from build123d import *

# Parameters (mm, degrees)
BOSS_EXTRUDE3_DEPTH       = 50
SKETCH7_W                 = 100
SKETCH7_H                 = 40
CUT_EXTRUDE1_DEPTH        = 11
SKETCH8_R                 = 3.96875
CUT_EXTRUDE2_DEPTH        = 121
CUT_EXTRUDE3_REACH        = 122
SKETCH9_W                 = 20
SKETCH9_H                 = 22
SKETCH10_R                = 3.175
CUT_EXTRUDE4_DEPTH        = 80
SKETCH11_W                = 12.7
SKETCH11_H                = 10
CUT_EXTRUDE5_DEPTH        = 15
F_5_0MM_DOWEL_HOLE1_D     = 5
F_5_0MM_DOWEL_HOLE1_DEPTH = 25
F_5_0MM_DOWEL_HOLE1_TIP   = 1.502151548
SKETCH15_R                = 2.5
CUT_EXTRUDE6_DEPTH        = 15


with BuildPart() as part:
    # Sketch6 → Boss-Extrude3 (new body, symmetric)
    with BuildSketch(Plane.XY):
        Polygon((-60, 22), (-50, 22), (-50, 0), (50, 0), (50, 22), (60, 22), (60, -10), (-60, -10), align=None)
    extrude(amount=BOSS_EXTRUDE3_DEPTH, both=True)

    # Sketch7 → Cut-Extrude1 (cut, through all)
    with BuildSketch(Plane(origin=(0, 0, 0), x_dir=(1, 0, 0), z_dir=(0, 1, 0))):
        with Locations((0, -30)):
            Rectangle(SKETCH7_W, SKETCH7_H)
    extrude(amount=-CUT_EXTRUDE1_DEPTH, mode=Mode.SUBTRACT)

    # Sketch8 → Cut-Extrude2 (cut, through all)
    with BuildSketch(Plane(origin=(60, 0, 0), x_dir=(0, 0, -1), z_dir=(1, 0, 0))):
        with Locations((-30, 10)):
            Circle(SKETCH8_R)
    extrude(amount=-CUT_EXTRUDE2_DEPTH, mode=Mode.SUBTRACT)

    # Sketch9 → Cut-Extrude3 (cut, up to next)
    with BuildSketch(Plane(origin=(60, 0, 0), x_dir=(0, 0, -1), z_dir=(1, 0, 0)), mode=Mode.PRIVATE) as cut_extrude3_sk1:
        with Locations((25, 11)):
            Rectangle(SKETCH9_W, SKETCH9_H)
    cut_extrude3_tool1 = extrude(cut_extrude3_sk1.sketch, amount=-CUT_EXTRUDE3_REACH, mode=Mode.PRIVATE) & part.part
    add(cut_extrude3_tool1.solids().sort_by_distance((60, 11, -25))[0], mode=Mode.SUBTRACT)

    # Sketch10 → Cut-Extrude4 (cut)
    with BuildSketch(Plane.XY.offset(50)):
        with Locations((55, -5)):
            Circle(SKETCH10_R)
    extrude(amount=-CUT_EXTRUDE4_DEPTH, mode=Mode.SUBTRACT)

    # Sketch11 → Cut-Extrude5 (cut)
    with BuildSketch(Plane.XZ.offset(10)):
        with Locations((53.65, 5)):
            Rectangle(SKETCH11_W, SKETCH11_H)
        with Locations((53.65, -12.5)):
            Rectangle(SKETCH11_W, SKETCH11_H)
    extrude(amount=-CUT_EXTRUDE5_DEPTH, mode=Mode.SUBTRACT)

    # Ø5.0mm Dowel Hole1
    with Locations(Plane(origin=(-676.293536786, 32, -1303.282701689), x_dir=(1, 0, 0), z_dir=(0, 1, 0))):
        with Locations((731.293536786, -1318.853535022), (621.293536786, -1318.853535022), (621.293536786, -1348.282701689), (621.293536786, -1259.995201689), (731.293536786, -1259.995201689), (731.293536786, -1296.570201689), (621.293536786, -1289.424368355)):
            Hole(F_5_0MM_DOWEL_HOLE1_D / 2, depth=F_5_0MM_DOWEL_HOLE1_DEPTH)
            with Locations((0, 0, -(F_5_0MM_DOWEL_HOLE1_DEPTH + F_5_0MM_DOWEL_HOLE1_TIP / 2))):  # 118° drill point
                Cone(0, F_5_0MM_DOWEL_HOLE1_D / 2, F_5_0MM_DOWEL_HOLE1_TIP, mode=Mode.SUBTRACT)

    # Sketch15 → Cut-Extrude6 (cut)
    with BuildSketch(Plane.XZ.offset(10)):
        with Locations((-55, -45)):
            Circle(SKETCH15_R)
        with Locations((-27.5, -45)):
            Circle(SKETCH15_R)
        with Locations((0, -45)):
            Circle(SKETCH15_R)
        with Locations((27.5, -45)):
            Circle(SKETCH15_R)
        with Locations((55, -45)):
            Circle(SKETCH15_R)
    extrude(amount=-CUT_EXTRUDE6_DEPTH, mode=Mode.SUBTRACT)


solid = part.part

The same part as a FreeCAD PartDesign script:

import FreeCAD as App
import Part
import Sketcher
from FreeCAD import Vector

doc = App.newDocument("Part")
body = doc.addObject("PartDesign::Body", "Body")

sketch1 = doc.addObject("Sketcher::SketchObject", "Sketch")
body.addObject(sketch1)
sketch1.AttachmentSupport = (doc.XY_Plane, [""])
sketch1.MapMode = "FlatFace"
sketch1.addGeometry([
    Part.LineSegment(Vector(-50, 22, 0), Vector(-60, 22, 0)),
    Part.LineSegment(Vector(-60, 22, 0), Vector(-60, -10, 0)),
    Part.LineSegment(Vector(-60, -10, 0), Vector(60, -10, 0)),
    Part.LineSegment(Vector(60, -10, 0), Vector(60, 22, 0)),
    Part.LineSegment(Vector(60, 22, 0), Vector(50, 22, 0)),
    Part.LineSegment(Vector(50, 22, 0), Vector(50, 0, 0)),
    Part.LineSegment(Vector(50, 0, 0), Vector(-50, 0, 0)),
    Part.LineSegment(Vector(-50, 0, 0), Vector(-50, 22, 0)),
], False)
sketch1.addConstraint([
    Sketcher.Constraint("Coincident", 0, 2, 1, 1),
    Sketcher.Constraint("Coincident", 1, 2, 2, 1),
    Sketcher.Constraint("Coincident", 2, 2, 3, 1),
    Sketcher.Constraint("Coincident", 3, 2, 4, 1),
    Sketcher.Constraint("Coincident", 4, 2, 5, 1),
    Sketcher.Constraint("Coincident", 5, 2, 6, 1),
    Sketcher.Constraint("Coincident", 6, 2, 7, 1),
    Sketcher.Constraint("Coincident", 7, 2, 0, 1),
    Sketcher.Constraint("Horizontal", 0),
    Sketcher.Constraint("Vertical", 1),
    Sketcher.Constraint("Horizontal", 2),
    Sketcher.Constraint("Vertical", 3),
    Sketcher.Constraint("Horizontal", 4),
    Sketcher.Constraint("Vertical", 5),
    Sketcher.Constraint("Horizontal", 6),
    Sketcher.Constraint("Vertical", 7),
    Sketcher.Constraint("Symmetric", 5, 2, 6, 2, -1, 1),
    Sketcher.Constraint("Symmetric", 0, 2, 3, 2, -2),
    Sketcher.Constraint("DistanceX", 0, 2, 0, 1, 10.0),
    Sketcher.Constraint("DistanceX", 2, 1, 2, 2, 120.0),
    Sketcher.Constraint("DistanceY", 1, 2, 1, 1, 32.0),
    Sketcher.Constraint("DistanceY", 5, 2, 5, 1, 22.0),
])
pad1 = doc.addObject("PartDesign::Pad", "Pad")
body.addObject(pad1)
pad1.Profile = sketch1
pad1.Length = 100
pad1.Midplane = True

sketch2 = doc.addObject("Sketcher::SketchObject", "Sketch001")
body.addObject(sketch2)
sketch2.AttachmentSupport = (doc.XZ_Plane, [""])
sketch2.MapMode = "FlatFace"
sketch2.addGeometry([
    Part.LineSegment(Vector(-50, 10, 0), Vector(-50, 50, 0)),
    Part.LineSegment(Vector(-50, 50, 0), Vector(50, 50, 0)),
    Part.LineSegment(Vector(50, 50, 0), Vector(50, 10, 0)),
    Part.LineSegment(Vector(50, 10, 0), Vector(-50, 10, 0)),
], False)
sketch2.addConstraint([
    Sketcher.Constraint("Coincident", 0, 2, 1, 1),
    Sketcher.Constraint("Coincident", 1, 2, 2, 1),
    Sketcher.Constraint("Coincident", 2, 2, 3, 1),
    Sketcher.Constraint("Coincident", 3, 2, 0, 1),
    Sketcher.Constraint("Vertical", 0),
    Sketcher.Constraint("Horizontal", 1),
    Sketcher.Constraint("Vertical", 2),
    Sketcher.Constraint("Horizontal", 3),
    Sketcher.Constraint("DistanceX", 1, 1, 1, 2, 100.0),
    Sketcher.Constraint("DistanceY", 0, 1, 0, 2, 40.0),
    Sketcher.Constraint("DistanceX", 0, 2, -1, 1, 50.0),
    Sketcher.Constraint("DistanceY", -1, 1, 0, 2, 50.0),
])
pocket1 = doc.addObject("PartDesign::Pocket", "Pocket")
body.addObject(pocket1)
pocket1.Profile = sketch2
pocket1.Type = "ThroughAll"
pocket1.Reversed = True

sketch3 = doc.addObject("Sketcher::SketchObject", "Sketch002")
body.addObject(sketch3)
sketch3.AttachmentSupport = (doc.YZ_Plane, [""])
sketch3.MapMode = "FlatFace"
sketch3.AttachmentOffset = App.Placement(Vector(0, 0, 60), App.Rotation())
sketch3.addGeometry(Part.Circle(Vector(10, 30, 0), Vector(0, 0, 1), 4), False)
sketch3.addConstraint([
    Sketcher.Constraint("DistanceX", -1, 1, 0, 3, 10.0),
    Sketcher.Constraint("DistanceY", -1, 1, 0, 3, 30.0),
    Sketcher.Constraint("Diameter", 0, 7.9375),
])
pocket2 = doc.addObject("PartDesign::Pocket", "Pocket001")
body.addObject(pocket2)
pocket2.Profile = sketch3
pocket2.Type = "ThroughAll"

sketch4 = doc.addObject("Sketcher::SketchObject", "Sketch003")
body.addObject(sketch4)
sketch4.AttachmentSupport = (doc.YZ_Plane, [""])
sketch4.MapMode = "FlatFace"
sketch4.AttachmentOffset = App.Placement(Vector(0, 0, 60), App.Rotation())
sketch4.addGeometry([
    Part.LineSegment(Vector(22, -15, 0), Vector(0, -15, 0)),
    Part.LineSegment(Vector(0, -15, 0), Vector(0, -35, 0)),
    Part.LineSegment(Vector(0, -35, 0), Vector(22, -35, 0)),
    Part.LineSegment(Vector(22, -35, 0), Vector(22, -15, 0)),
], False)
sketch4.addConstraint([
    Sketcher.Constraint("Coincident", 0, 2, 1, 1),
    Sketcher.Constraint("Coincident", 1, 2, 2, 1),
    Sketcher.Constraint("Coincident", 2, 2, 3, 1),
    Sketcher.Constraint("Coincident", 3, 2, 0, 1),
    Sketcher.Constraint("Horizontal", 0),
    Sketcher.Constraint("Vertical", 1),
    Sketcher.Constraint("Horizontal", 2),
    Sketcher.Constraint("Vertical", 3),
    Sketcher.Constraint("PointOnObject", 0, 2, -2),
    Sketcher.Constraint("DistanceX", 0, 2, 0, 1, 22.0),
    Sketcher.Constraint("DistanceY", 1, 2, 1, 1, 20.0),
    Sketcher.Constraint("DistanceY", 0, 2, -1, 1, 15.0),
])
pocket3 = doc.addObject("PartDesign::Pocket", "Pocket002")
body.addObject(pocket3)
pocket3.Profile = sketch4
pocket3.Type = "UpToFirst"

sketch5 = doc.addObject("Sketcher::SketchObject", "Sketch004")
body.addObject(sketch5)
sketch5.AttachmentSupport = (doc.XY_Plane, [""])
sketch5.MapMode = "FlatFace"
sketch5.AttachmentOffset = App.Placement(Vector(0, 0, 50), App.Rotation())
sketch5.addGeometry(Part.Circle(Vector(55, -5, 0), Vector(0, 0, 1), 3.2), False)
sketch5.addConstraint([
    Sketcher.Constraint("Diameter", 0, 6.35),
    Sketcher.Constraint("DistanceX", -1, 1, 0, 3, 55.0),
    Sketcher.Constraint("DistanceY", 0, 3, -1, 1, 5.0),
])
pocket4 = doc.addObject("PartDesign::Pocket", "Pocket003")
body.addObject(pocket4)
pocket4.Profile = sketch5
pocket4.Length = 80

sketch6 = doc.addObject("Sketcher::SketchObject", "Sketch005")
body.addObject(sketch6)
sketch6.AttachmentSupport = (doc.XZ_Plane, [""])
sketch6.MapMode = "FlatFace"
sketch6.AttachmentOffset = App.Placement(Vector(0, 0, 10), App.Rotation())
sketch6.addGeometry([
    Part.LineSegment(Vector(47, 10, 0), Vector(47, 0, 0)),
    Part.LineSegment(Vector(47, 0, 0), Vector(60, 0, 0)),
    Part.LineSegment(Vector(60, 0, 0), Vector(60, 10, 0)),
    Part.LineSegment(Vector(60, 10, 0), Vector(47, 10, 0)),
    Part.LineSegment(Vector(47, -8, 0), Vector(47, -18, 0)),
    Part.LineSegment(Vector(47, -18, 0), Vector(60, -18, 0)),
    Part.LineSegment(Vector(60, -18, 0), Vector(60, -8, 0)),
    Part.LineSegment(Vector(60, -8, 0), Vector(47, -8, 0)),
], False)
sketch6.addConstraint([
    Sketcher.Constraint("Coincident", 0, 2, 1, 1),
    Sketcher.Constraint("Coincident", 1, 2, 2, 1),
    Sketcher.Constraint("Coincident", 2, 2, 3, 1),
    Sketcher.Constraint("Coincident", 3, 2, 0, 1),
    Sketcher.Constraint("Coincident", 4, 2, 5, 1),
    Sketcher.Constraint("Coincident", 5, 2, 6, 1),
    Sketcher.Constraint("Coincident", 6, 2, 7, 1),
    Sketcher.Constraint("Coincident", 7, 2, 4, 1),
    Sketcher.Constraint("Vertical", 0),
    Sketcher.Constraint("Horizontal", 1),
    Sketcher.Constraint("Vertical", 2),
    Sketcher.Constraint("Horizontal", 3),
    Sketcher.Constraint("Vertical", 4),
    Sketcher.Constraint("Horizontal", 5),
    Sketcher.Constraint("Vertical", 6),
    Sketcher.Constraint("Horizontal", 7),
    Sketcher.Constraint("PointOnObject", 0, 2, -1),
    Sketcher.Constraint("Vertical", 3, 2, 4, 2),
    Sketcher.Constraint("Vertical", 2, 2, 5, 2),
    Sketcher.Constraint("Equal", 2, 4),
    Sketcher.Constraint("DistanceY", 0, 2, 0, 1, 10.0),
    Sketcher.Constraint("DistanceX", 1, 1, 1, 2, 12.7),
    Sketcher.Constraint("DistanceX", -1, 1, 1, 2, 60.0),
    Sketcher.Constraint("DistanceY", 4, 2, -1, 1, 17.5),
])
pocket5 = doc.addObject("PartDesign::Pocket", "Pocket004")
body.addObject(pocket5)
pocket5.Profile = sketch6
pocket5.Length = 15

sketch7 = doc.addObject("Sketcher::SketchObject", "Sketch006")
body.addObject(sketch7)
sketch7.AttachmentSupport = (doc.XZ_Plane, [""])
sketch7.MapMode = "FlatFace"
sketch7.AttachmentOffset = App.Placement(Vector(0, 0, -32), App.Rotation())
sketch7.addGeometry([
    Part.Circle(Vector(55, 15.6, 0), Vector(0, 0, 1), 2.5),
    Part.Circle(Vector(-55, 15.6, 0), Vector(0, 0, 1), 2.5),
    Part.Circle(Vector(-55, 45, 0), Vector(0, 0, 1), 2.5),
    Part.Circle(Vector(-55, -43.3, 0), Vector(0, 0, 1), 2.5),
    Part.Circle(Vector(55, -43.3, 0), Vector(0, 0, 1), 2.5),
    Part.Circle(Vector(55, -6.7, 0), Vector(0, 0, 1), 2.5),
    Part.Circle(Vector(-55, -13.9, 0), Vector(0, 0, 1), 2.5),
], False)
sketch7.addConstraint([
    Sketcher.Constraint("Equal", 0, 1),
    Sketcher.Constraint("Equal", 1, 2),
    Sketcher.Constraint("Equal", 2, 3),
    Sketcher.Constraint("Equal", 3, 4),
    Sketcher.Constraint("Equal", 4, 5),
    Sketcher.Constraint("Equal", 5, 6),
    Sketcher.Constraint("Symmetric", 0, 3, 1, 3, -2),
    Sketcher.Constraint("Symmetric", 3, 3, 4, 3, -2),
    Sketcher.Constraint("Vertical", 1, 3, 2, 3),
    Sketcher.Constraint("Vertical", 2, 3, 3, 3),
    Sketcher.Constraint("Vertical", 4, 3, 5, 3),
    Sketcher.Constraint("Vertical", 3, 3, 6, 3),
    Sketcher.Constraint("Diameter", 0, 5.0),
    Sketcher.Constraint("DistanceX", -1, 1, 0, 3, 55.0),
    Sketcher.Constraint("DistanceY", -1, 1, 2, 3, 45.0),
    Sketcher.Constraint("DistanceY", 4, 3, 5, 3, 36.575),
    Sketcher.Constraint("DistanceY", 3, 3, -1, 1, 43.2875),
    Sketcher.Constraint("DistanceY", -1, 1, 0, 3, 15.570833),
    Sketcher.Constraint("DistanceY", 6, 3, -1, 1, 13.858333),
])
doc.recompute()
hole = doc.addObject("PartDesign::Hole", "Hole")
body.addObject(hole)
hole.Profile = sketch7
hole.ThreadType = "None"
hole.Diameter = 5
hole.DepthType = "Dimension"
hole.Depth = 25
hole.DrillPoint = "Angled"
hole.DrillPointAngle = 118
hole.Reversed = True

sketch8 = doc.addObject("Sketcher::SketchObject", "Sketch007")
body.addObject(sketch8)
sketch8.AttachmentSupport = (doc.XZ_Plane, [""])
sketch8.MapMode = "FlatFace"
sketch8.AttachmentOffset = App.Placement(Vector(0, 0, 10), App.Rotation())
sketch8.addGeometry([
    Part.Circle(Vector(-55, -45, 0), Vector(0, 0, 1), 2.5),
    Part.Circle(Vector(-27.5, -45, 0), Vector(0, 0, 1), 2.5),
    Part.Circle(Vector(0, -45, 0), Vector(0, 0, 1), 2.5),
    Part.Circle(Vector(27.5, -45, 0), Vector(0, 0, 1), 2.5),
    Part.Circle(Vector(55, -45, 0), Vector(0, 0, 1), 2.5),
], False)
sketch8.addConstraint([
    Sketcher.Constraint("Equal", 0, 1),
    Sketcher.Constraint("Equal", 1, 2),
    Sketcher.Constraint("Equal", 2, 3),
    Sketcher.Constraint("Equal", 3, 4),
    Sketcher.Constraint("Symmetric", 1, 3, 3, 3, -2),
    Sketcher.Constraint("Symmetric", 0, 3, 4, 3, -2),
    Sketcher.Constraint("PointOnObject", 2, 3, -2),
    Sketcher.Constraint("Horizontal", 0, 3, 1, 3),
    Sketcher.Constraint("Horizontal", 1, 3, 2, 3),
    Sketcher.Constraint("Diameter", 0, 5.0),
    Sketcher.Constraint("DistanceX", 0, 3, -1, 1, 55.0),
    Sketcher.Constraint("DistanceY", 0, 3, -1, 1, 45.0),
    Sketcher.Constraint("DistanceX", 1, 3, 3, 3, 55.0),
])
pocket6 = doc.addObject("PartDesign::Pocket", "Pocket005")
body.addObject(pocket6)
pocket6.Profile = sketch8
pocket6.Length = 15

doc.recompute()
